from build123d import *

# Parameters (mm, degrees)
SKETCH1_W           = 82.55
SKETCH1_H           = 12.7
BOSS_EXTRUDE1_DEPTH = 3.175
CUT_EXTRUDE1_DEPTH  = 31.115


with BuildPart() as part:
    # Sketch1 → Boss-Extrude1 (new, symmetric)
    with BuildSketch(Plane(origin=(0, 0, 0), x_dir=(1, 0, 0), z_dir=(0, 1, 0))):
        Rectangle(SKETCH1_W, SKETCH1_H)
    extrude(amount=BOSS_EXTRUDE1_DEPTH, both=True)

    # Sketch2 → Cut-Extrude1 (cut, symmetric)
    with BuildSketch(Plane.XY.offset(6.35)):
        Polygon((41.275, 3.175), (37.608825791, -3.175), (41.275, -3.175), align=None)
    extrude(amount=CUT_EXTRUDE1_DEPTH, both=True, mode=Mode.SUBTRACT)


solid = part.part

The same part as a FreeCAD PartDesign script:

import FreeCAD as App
import Part
import Sketcher

V = App.Vector
Q = App.Units.Quantity

doc = App.newDocument("Part")
body = doc.addObject("PartDesign::Body", "Body")

# Sketch on XZ plane
sketch1 = body.newObject("Sketcher::SketchObject", "Sketch")
sketch1.AttachmentSupport = (doc.getObject("XZ_Plane"), [""])
sketch1.MapMode = "FlatFace"
sketch1.addGeometry(Part.LineSegment(V(-41, -6, 0), V(-41, 6, 0)), False)
sketch1.addGeometry(Part.LineSegment(V(-41, 6, 0), V(41, 6, 0)), False)
sketch1.addGeometry(Part.LineSegment(V(41, 6, 0), V(41, -6, 0)), False)
sketch1.addGeometry(Part.LineSegment(V(41, -6, 0), V(-41, -6, 0)), False)
sketch1.addConstraint(Sketcher.Constraint("Coincident", 0, 2, 1, 1))
sketch1.addConstraint(Sketcher.Constraint("Coincident", 1, 2, 2, 1))
sketch1.addConstraint(Sketcher.Constraint("Coincident", 2, 2, 3, 1))
sketch1.addConstraint(Sketcher.Constraint("Coincident", 3, 2, 0, 1))
sketch1.addConstraint(Sketcher.Constraint("Vertical", 0))
sketch1.addConstraint(Sketcher.Constraint("Horizontal", 1))
sketch1.addConstraint(Sketcher.Constraint("Vertical", 2))
sketch1.addConstraint(Sketcher.Constraint("Horizontal", 3))
sketch1.addConstraint(Sketcher.Constraint("Symmetric", 0, 2, 2, 2, -1, 1))
sketch1.addConstraint(Sketcher.Constraint("DistanceY", 0, 1, 0, 2, Q("0.5 in")))
sketch1.addConstraint(Sketcher.Constraint("DistanceX", 1, 1, 1, 2, Q("3.25 in")))
pad1 = body.newObject("PartDesign::Pad", "Pad")
pad1.Profile = sketch1
pad1.Length = Q("0.25 in")
pad1.Midplane = True

# Sketch on XY plane
sketch2 = body.newObject("Sketcher::SketchObject", "Sketch001")
sketch2.AttachmentSupport = (doc.getObject("XY_Plane"), [""])
sketch2.MapMode = "FlatFace"
sketch2.AttachmentOffset = App.Placement(V(0, 0, 0.25 * 25.4), App.Rotation())
sketch2.addGeometry(Part.LineSegment(V(41.3, 3.2, 0), V(37.6, -3.2, 0)), False)
sketch2.addGeometry(Part.LineSegment(V(37.6, -3.2, 0), V(41.3, -3.2, 0)), False)
sketch2.addGeometry(Part.LineSegment(V(41.3, -3.2, 0), V(41.3, 3.2, 0)), False)
sketch2.addConstraint(Sketcher.Constraint("Coincident", 0, 2, 1, 1))
sketch2.addConstraint(Sketcher.Constraint("Coincident", 1, 2, 2, 1))
sketch2.addConstraint(Sketcher.Constraint("Coincident", 2, 2, 0, 1))
sketch2.addConstraint(Sketcher.Constraint("Horizontal", 1))
sketch2.addConstraint(Sketcher.Constraint("Vertical", 2))
sketch2.addConstraint(Sketcher.Constraint("Angle", 0, Q("-120 deg")))
sketch2.addConstraint(Sketcher.Constraint("DistanceY", 2, 1, 2, 2, Q("0.25 in")))
sketch2.addConstraint(Sketcher.Constraint("DistanceY", 0, 2, -1, 1, Q("0.125 in")))
sketch2.addConstraint(Sketcher.Constraint("DistanceX", -1, 1, 1, 2, Q("1.625 in")))
pocket1 = body.newObject("PartDesign::Pocket", "Pocket")
pocket1.Profile = sketch2
pocket1.Length = Q("2.45 in")
pocket1.Midplane = True

doc.recompute()
